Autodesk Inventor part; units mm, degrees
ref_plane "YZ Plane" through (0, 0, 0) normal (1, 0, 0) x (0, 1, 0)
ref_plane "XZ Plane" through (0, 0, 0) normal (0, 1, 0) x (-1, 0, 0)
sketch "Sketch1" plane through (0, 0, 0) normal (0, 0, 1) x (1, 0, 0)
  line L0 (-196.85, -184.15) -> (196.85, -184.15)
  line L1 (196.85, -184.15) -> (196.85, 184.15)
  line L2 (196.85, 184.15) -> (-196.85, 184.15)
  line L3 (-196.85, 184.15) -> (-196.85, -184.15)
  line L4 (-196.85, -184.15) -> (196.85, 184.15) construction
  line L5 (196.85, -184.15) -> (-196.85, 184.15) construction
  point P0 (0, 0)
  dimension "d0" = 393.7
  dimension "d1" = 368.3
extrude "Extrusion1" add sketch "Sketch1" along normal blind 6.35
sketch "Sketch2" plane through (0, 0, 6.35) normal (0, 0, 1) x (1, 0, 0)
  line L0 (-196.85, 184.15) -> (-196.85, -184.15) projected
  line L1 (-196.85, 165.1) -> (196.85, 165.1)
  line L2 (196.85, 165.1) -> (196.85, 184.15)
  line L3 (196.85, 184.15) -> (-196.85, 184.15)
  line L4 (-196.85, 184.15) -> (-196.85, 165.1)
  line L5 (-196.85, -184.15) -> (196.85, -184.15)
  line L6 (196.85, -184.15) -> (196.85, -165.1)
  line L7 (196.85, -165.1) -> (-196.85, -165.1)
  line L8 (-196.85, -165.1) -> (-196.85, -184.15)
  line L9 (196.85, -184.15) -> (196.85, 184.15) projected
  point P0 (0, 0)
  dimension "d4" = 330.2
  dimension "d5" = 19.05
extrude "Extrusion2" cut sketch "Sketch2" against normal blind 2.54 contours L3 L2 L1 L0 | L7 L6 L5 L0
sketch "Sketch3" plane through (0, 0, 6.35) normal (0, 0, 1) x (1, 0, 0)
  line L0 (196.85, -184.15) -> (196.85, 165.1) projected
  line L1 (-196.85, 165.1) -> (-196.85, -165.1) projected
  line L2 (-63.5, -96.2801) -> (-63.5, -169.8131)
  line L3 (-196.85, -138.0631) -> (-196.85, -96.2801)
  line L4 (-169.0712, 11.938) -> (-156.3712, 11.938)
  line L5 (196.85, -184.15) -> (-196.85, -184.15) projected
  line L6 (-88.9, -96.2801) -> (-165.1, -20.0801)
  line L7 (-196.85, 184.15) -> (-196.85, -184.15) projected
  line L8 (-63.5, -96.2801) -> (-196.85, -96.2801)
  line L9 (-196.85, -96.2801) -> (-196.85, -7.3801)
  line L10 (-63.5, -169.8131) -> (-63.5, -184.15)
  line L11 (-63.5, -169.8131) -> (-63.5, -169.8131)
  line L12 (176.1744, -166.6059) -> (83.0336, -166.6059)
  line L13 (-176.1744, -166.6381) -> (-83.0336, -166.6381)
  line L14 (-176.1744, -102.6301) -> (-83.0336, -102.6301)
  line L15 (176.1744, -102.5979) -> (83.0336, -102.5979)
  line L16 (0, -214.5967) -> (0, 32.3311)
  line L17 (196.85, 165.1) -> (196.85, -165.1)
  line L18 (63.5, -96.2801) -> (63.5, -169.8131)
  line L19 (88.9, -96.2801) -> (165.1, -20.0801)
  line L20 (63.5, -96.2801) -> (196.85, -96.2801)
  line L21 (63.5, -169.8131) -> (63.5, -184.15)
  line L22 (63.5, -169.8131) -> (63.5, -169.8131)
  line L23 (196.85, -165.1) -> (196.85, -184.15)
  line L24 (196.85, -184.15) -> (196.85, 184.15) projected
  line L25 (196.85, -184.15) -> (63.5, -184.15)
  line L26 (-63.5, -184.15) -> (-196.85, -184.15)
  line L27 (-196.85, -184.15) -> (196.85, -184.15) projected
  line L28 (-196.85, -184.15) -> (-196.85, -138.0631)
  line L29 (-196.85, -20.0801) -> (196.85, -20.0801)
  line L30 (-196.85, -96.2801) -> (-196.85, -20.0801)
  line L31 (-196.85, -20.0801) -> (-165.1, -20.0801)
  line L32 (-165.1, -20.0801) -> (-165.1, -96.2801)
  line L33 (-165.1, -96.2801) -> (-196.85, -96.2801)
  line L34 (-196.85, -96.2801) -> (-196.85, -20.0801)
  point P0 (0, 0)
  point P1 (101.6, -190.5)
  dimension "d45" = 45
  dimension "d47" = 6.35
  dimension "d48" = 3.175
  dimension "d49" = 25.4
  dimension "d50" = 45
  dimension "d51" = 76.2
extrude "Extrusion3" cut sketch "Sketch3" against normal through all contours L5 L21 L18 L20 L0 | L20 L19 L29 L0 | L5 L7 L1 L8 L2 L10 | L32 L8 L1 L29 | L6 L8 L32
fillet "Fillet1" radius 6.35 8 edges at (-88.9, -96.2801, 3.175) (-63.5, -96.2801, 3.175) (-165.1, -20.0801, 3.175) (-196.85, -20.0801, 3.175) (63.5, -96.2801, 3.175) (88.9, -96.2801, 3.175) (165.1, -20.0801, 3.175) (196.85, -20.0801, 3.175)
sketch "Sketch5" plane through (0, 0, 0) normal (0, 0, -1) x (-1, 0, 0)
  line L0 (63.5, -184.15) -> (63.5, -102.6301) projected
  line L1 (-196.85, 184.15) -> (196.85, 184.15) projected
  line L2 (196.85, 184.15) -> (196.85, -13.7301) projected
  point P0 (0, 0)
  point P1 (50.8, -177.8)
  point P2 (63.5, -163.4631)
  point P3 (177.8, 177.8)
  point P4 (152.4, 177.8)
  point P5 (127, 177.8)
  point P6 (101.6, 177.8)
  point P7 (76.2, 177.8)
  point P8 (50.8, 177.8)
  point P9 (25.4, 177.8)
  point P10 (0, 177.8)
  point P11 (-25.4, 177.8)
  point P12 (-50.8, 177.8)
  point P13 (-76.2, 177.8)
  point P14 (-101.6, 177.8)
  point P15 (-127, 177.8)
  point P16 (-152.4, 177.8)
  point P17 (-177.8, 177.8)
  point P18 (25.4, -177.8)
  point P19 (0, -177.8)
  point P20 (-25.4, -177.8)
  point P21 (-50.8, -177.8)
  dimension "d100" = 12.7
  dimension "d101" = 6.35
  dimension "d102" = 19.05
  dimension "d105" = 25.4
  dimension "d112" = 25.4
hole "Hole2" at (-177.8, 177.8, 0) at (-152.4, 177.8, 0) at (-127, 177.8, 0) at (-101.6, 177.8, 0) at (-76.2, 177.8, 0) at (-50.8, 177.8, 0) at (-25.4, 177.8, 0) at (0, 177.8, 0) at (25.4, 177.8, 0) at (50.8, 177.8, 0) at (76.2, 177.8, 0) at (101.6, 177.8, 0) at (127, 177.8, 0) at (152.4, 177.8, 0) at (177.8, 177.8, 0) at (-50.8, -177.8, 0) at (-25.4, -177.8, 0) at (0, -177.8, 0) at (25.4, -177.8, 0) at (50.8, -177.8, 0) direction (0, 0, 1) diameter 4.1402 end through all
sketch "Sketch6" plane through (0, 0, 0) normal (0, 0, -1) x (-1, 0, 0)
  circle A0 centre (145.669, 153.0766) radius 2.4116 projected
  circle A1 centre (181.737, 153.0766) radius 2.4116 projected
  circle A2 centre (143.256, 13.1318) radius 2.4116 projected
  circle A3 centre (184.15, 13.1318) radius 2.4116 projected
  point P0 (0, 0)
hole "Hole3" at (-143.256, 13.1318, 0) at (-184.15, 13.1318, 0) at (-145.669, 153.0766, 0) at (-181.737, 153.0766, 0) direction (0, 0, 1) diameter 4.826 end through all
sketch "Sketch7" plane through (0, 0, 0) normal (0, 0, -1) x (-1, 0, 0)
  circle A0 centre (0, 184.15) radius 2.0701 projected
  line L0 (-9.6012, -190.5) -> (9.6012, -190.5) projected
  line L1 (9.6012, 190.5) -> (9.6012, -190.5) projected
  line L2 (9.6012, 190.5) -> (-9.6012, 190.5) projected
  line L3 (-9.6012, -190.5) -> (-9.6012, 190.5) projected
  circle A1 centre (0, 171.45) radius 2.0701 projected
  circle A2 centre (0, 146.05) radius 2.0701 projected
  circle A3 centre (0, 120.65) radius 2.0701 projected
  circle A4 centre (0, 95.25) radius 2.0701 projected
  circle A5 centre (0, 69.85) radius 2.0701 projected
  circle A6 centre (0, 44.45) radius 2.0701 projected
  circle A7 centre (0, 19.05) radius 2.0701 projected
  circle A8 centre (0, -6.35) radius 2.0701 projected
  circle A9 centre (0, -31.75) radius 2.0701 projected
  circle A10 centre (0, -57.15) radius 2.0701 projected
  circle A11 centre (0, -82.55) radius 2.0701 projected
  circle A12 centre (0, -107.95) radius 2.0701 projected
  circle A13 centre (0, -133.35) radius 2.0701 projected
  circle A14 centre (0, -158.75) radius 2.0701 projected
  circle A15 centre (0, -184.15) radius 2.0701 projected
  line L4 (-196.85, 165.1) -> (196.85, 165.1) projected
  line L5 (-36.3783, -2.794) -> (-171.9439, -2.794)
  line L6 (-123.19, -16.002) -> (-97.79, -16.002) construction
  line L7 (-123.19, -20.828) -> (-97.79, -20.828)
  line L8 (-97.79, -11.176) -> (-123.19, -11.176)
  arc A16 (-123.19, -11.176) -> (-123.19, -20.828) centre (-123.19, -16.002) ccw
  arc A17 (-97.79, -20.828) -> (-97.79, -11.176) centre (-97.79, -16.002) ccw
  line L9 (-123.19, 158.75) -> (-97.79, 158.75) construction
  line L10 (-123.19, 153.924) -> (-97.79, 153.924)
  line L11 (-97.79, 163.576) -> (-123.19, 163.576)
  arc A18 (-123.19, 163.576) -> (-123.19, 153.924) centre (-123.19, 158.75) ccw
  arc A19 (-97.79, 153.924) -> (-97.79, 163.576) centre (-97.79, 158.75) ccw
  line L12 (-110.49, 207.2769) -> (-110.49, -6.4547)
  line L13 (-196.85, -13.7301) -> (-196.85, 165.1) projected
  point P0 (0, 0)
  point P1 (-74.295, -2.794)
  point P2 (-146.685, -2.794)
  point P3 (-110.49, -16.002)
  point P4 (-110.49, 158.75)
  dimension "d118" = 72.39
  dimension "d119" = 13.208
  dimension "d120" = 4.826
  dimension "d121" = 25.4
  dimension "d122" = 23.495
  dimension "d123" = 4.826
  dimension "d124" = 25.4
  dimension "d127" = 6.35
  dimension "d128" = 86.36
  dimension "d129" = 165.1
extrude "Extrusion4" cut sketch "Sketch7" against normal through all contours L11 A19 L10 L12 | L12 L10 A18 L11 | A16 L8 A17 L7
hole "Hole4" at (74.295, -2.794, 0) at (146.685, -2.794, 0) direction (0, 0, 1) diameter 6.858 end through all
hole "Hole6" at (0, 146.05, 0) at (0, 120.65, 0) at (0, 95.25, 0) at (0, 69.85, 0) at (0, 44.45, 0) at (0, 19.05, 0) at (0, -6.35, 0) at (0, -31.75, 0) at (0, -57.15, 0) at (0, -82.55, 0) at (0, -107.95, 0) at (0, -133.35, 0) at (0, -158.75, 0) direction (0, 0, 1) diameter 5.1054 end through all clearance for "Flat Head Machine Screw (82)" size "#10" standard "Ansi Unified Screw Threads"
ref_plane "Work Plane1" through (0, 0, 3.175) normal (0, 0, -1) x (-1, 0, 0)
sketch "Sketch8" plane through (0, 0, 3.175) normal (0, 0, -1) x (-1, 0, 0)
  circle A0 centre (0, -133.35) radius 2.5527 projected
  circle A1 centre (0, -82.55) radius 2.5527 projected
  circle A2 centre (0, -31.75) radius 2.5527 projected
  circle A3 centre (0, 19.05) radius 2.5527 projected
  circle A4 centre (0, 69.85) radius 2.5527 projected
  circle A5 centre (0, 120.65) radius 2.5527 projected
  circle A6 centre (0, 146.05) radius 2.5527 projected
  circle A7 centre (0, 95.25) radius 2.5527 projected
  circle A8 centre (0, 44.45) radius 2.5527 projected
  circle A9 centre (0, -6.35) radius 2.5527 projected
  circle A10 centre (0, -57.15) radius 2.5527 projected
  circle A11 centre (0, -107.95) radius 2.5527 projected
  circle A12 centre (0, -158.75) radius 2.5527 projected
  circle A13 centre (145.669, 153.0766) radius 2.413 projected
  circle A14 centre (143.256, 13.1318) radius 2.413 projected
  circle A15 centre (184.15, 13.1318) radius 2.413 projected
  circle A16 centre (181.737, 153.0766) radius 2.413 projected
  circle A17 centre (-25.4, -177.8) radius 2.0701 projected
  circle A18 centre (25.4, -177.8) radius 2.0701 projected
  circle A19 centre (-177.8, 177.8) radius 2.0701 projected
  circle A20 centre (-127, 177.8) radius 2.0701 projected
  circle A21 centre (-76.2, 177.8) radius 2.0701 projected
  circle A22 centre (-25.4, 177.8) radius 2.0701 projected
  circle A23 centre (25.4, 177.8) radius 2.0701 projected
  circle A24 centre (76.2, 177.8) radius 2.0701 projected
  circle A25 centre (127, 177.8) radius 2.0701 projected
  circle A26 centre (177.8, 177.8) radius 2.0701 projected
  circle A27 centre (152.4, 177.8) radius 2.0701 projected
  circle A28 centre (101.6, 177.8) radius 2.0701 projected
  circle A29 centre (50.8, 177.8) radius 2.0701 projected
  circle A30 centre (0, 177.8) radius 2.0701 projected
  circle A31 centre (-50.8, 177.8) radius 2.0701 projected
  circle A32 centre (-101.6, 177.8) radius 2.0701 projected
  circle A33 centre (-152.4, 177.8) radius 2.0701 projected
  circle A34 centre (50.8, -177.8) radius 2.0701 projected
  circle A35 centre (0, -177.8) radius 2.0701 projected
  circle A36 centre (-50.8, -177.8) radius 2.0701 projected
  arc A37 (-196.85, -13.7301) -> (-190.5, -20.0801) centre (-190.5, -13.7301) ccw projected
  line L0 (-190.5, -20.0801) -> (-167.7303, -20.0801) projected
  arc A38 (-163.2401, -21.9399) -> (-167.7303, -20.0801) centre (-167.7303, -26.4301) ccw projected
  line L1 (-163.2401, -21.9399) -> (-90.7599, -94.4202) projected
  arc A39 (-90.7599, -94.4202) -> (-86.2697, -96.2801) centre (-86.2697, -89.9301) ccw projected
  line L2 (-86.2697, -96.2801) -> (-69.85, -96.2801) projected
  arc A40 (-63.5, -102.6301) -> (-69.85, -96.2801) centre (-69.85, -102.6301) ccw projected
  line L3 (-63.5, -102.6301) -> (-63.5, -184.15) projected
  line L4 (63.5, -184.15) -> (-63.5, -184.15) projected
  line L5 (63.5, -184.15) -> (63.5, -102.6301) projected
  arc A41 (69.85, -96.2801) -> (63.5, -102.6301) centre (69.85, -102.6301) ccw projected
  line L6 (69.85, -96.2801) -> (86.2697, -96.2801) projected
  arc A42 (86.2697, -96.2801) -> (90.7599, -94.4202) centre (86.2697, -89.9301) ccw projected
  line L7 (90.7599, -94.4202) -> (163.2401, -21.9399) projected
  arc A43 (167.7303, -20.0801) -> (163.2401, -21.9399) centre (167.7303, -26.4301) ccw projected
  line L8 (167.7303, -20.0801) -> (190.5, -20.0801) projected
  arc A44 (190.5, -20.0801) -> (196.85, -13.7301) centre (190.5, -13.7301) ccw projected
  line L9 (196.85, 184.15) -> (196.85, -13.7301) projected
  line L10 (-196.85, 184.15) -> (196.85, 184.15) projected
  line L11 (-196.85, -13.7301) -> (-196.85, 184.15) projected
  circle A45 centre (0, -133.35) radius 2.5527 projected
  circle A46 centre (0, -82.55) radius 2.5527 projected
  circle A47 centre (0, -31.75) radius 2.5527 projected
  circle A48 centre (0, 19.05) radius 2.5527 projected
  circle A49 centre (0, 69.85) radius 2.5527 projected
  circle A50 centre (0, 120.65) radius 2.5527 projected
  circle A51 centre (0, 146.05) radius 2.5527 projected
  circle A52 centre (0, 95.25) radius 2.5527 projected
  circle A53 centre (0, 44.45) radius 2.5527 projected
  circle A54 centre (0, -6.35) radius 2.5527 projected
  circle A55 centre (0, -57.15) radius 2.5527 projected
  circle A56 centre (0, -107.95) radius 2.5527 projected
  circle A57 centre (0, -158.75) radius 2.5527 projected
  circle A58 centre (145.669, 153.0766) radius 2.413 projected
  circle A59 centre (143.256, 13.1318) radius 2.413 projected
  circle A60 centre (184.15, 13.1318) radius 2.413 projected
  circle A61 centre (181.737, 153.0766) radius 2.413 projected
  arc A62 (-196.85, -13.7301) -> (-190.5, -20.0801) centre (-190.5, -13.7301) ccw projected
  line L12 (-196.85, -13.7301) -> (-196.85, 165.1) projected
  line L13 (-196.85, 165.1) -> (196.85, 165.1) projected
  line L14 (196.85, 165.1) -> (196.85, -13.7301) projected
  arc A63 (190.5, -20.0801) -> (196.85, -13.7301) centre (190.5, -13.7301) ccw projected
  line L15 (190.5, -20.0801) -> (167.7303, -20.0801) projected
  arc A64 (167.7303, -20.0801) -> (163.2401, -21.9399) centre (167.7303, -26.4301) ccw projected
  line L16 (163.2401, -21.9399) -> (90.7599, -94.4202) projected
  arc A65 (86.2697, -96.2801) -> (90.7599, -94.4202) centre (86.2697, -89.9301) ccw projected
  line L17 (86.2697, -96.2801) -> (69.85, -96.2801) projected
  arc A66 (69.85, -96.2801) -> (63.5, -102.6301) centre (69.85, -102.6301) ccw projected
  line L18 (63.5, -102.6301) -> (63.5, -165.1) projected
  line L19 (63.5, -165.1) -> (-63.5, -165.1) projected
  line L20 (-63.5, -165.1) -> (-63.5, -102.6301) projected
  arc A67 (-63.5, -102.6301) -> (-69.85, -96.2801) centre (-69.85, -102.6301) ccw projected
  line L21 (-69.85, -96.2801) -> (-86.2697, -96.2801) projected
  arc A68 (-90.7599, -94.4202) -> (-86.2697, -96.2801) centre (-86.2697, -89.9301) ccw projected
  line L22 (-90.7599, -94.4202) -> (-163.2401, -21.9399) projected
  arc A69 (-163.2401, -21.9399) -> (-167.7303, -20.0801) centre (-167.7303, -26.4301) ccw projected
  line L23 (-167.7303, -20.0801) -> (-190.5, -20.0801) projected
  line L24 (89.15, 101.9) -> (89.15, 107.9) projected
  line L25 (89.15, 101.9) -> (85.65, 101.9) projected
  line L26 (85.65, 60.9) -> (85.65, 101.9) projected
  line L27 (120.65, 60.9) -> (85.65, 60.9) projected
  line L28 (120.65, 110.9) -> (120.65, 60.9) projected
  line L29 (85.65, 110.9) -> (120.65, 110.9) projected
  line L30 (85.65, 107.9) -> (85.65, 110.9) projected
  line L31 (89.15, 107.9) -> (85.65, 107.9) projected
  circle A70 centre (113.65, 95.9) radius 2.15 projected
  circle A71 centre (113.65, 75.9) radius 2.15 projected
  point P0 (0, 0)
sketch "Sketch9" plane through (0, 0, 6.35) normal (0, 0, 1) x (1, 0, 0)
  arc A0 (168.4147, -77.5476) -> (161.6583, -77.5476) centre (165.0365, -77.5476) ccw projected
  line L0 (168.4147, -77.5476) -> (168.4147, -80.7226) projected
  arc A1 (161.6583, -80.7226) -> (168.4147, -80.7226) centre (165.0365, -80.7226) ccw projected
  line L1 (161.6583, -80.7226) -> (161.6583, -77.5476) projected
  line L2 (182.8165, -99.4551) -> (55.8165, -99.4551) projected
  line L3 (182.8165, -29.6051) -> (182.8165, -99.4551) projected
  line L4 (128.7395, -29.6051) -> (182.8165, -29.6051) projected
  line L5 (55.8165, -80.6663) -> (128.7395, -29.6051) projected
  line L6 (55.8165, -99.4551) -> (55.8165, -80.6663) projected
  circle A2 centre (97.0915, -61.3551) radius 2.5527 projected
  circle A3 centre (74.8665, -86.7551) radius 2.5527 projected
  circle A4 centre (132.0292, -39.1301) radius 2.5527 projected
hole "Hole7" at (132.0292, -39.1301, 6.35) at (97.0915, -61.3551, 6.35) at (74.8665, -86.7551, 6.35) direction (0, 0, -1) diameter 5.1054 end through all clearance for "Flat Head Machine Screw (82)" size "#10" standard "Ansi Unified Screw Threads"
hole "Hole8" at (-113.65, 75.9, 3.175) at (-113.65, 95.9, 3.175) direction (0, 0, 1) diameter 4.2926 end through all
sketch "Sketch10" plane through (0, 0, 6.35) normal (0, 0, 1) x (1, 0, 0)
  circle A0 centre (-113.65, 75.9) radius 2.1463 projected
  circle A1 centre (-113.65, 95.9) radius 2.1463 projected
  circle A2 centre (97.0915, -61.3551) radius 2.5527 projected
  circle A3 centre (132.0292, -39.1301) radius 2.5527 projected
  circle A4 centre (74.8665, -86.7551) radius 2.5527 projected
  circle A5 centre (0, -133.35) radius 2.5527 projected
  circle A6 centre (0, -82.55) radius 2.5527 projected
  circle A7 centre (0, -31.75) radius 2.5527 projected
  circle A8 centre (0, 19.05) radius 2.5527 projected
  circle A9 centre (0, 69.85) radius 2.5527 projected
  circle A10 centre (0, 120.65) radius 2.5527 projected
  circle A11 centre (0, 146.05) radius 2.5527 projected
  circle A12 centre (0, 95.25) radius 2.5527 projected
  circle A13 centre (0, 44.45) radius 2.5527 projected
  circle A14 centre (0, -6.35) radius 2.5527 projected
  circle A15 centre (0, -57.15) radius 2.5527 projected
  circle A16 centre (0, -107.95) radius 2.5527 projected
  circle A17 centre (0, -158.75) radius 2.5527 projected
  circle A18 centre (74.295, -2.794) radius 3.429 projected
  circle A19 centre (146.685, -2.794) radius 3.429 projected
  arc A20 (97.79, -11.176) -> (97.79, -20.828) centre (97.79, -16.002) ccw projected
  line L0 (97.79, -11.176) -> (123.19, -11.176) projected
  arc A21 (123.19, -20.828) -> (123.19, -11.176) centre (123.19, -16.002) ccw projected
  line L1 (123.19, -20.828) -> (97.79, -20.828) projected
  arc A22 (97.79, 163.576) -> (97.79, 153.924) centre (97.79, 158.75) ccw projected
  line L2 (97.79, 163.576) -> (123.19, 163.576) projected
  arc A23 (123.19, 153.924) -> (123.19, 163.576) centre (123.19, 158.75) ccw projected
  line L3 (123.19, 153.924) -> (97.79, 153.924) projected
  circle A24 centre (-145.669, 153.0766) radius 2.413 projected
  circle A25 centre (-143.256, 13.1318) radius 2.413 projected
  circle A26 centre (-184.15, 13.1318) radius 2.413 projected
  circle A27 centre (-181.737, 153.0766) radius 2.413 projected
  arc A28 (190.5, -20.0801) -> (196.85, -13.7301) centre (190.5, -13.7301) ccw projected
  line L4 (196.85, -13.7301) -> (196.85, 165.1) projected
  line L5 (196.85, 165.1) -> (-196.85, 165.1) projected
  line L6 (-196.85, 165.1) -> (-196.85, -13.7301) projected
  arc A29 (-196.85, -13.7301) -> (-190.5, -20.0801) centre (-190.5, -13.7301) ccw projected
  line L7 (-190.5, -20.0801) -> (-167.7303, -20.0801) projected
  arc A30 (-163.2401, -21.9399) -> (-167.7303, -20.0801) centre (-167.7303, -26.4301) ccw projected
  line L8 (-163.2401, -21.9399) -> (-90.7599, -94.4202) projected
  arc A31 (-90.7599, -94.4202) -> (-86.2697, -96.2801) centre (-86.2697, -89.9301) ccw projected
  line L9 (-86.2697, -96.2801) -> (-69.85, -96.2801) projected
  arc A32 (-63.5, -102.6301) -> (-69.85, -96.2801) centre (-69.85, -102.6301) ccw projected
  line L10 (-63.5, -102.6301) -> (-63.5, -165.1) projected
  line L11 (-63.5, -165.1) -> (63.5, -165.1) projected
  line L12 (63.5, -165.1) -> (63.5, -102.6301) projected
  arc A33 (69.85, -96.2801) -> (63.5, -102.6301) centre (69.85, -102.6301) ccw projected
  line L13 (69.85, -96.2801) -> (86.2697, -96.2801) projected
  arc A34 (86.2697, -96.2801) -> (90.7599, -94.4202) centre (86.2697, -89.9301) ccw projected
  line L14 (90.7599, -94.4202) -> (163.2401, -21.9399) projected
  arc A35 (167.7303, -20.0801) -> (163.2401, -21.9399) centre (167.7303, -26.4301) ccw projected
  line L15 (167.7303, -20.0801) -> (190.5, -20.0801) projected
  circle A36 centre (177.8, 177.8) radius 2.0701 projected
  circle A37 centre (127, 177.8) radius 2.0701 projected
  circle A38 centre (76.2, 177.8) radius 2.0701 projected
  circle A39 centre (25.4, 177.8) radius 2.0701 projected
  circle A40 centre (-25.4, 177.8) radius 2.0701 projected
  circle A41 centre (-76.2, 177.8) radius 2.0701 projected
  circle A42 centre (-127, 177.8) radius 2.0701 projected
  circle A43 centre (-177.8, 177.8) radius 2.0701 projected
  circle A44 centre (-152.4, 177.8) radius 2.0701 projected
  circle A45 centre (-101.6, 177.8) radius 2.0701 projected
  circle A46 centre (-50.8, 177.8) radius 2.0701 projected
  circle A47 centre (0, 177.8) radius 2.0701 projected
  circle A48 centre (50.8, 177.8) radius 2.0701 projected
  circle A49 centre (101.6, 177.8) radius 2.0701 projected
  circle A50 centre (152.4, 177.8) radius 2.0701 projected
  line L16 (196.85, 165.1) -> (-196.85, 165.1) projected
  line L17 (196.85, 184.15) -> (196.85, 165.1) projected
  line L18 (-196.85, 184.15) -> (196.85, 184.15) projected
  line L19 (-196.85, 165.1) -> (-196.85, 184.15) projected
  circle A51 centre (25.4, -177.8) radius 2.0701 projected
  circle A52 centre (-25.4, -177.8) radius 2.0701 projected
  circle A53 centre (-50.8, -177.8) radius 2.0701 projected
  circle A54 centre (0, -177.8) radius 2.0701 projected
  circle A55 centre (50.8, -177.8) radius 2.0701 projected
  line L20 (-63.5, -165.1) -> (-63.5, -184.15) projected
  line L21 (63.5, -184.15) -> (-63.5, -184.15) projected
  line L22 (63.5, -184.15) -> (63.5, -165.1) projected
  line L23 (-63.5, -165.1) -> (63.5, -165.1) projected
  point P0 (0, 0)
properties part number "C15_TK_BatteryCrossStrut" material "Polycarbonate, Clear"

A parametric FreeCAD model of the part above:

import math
import FreeCAD as App
import Part
import Sketcher
from FreeCAD import Vector
Q = App.Units.Quantity


def edges_at(feature, points):
    """Names of the edges that pass closest to the given points."""
    edges = feature.Shape.Edges
    near = lambda p: min(range(len(edges)), key=lambda i: edges[i].distToShape(Part.Vertex(*p))[0])
    return sorted({f"Edge{near(p) + 1}" for p in points})

doc = App.newDocument("Part")
params = doc.addObject("Spreadsheet::Sheet", "Params")
for row, (alias, value) in enumerate([
    ("sketch1_width", "15.5 in"),
    ("sketch1_height", "14.5 in"),
    ("pad1_length", "0.25 in"),
    ("sketch2_height", "0.75 in"),
    ("sketch2_width", "15.5 in"),
    ("pocket1_length", "0.1 in"),
    ("sketch3_width", "1 in"),
    ("sketch3_width2", "5.25 in"),
    ("fillet_radius", "0.25 in"),
    ("sketch4_diameter", "0.163 in"),
    ("hole_diameter", "0.163 in"),
    ("sketch5_diameter", "0.19 in"),
    ("hole2_diameter", "0.19 in"),
    ("sketch6_width", "1 in"),
    ("sketch6_radius", "0.19 in"),
    ("sketch7_diameter", "0.27 in"),
    ("hole3_diameter", "0.27 in"),
    ("sketch8_diameter", "0.201 in"),
    ("hole4_diameter", "0.201 in"),
    ("sketch9_diameter", "0.201 in"),
    ("hole5_diameter", "0.201 in"),
    ("sketch10_diameter", "0.169 in"),
    ("hole6_diameter", "0.169 in"),
], start=1):
    params.set(f"A{row}", alias)
    params.set(f"B{row}", "=" + value)
    params.setAlias(f"B{row}", alias)

body = doc.addObject("PartDesign::Body", "Body")

# Sketch on XY plane
sketch1 = body.newObject("Sketcher::SketchObject", "Sketch")
sketch1.AttachmentSupport = (doc.getObject("XY_Plane"), [""])
sketch1.MapMode = "FlatFace"
sketch1.addGeometry(Part.LineSegment(Vector(-197, 184, 0), Vector(-197, -184, 0)), False)
sketch1.addGeometry(Part.LineSegment(Vector(-197, -184, 0), Vector(197, -184, 0)), False)
sketch1.addGeometry(Part.LineSegment(Vector(197, -184, 0), Vector(197, 184, 0)), False)
sketch1.addGeometry(Part.LineSegment(Vector(197, 184, 0), Vector(-197, 184, 0)), False)
sketch1.addConstraint(Sketcher.Constraint("Coincident", 0, 2, 1, 1))
sketch1.addConstraint(Sketcher.Constraint("Coincident", 1, 2, 2, 1))
sketch1.addConstraint(Sketcher.Constraint("Coincident", 2, 2, 3, 1))
sketch1.addConstraint(Sketcher.Constraint("Coincident", 3, 2, 0, 1))
sketch1.addConstraint(Sketcher.Constraint("Vertical", 0))
sketch1.addConstraint(Sketcher.Constraint("Horizontal", 1))
sketch1.addConstraint(Sketcher.Constraint("Vertical", 2))
sketch1.addConstraint(Sketcher.Constraint("Horizontal", 3))
sketch1.addConstraint(Sketcher.Constraint("Symmetric", 0, 2, 2, 2, -1, 1))
sketch1.addConstraint(Sketcher.Constraint("DistanceX", 1, 1, 1, 2, Q("15.5 in")))
sketch1.addConstraint(Sketcher.Constraint("DistanceY", 0, 2, 0, 1, Q("14.5 in")))
sketch1.setExpression("Constraints[9]", "Params.sketch1_width")
sketch1.setExpression("Constraints[10]", "Params.sketch1_height")
pad1 = body.newObject("PartDesign::Pad", "Pad")
pad1.Profile = sketch1
pad1.setExpression("Length", "Params.pad1_length")

# Sketch on XY plane
sketch2 = body.newObject("Sketcher::SketchObject", "Sketch001")
sketch2.AttachmentSupport = (doc.getObject("XY_Plane"), [""])
sketch2.MapMode = "FlatFace"
sketch2.AttachmentOffset = App.Placement(Vector(0, 0, 0.25 * 25.4), App.Rotation())
sketch2.addGeometry(Part.LineSegment(Vector(197, 184, 0), Vector(-197, 184, 0)), False)
sketch2.addGeometry(Part.LineSegment(Vector(-197, 184, 0), Vector(-197, 165, 0)), False)
sketch2.addGeometry(Part.LineSegment(Vector(-197, 165, 0), Vector(197, 165, 0)), False)
sketch2.addGeometry(Part.LineSegment(Vector(197, 165, 0), Vector(197, 184, 0)), False)
sketch2.addGeometry(Part.LineSegment(Vector(197, -165, 0), Vector(-197, -165, 0)), False)
sketch2.addGeometry(Part.LineSegment(Vector(-197, -165, 0), Vector(-197, -184, 0)), False)
sketch2.addGeometry(Part.LineSegment(Vector(-197, -184, 0), Vector(197, -184, 0)), False)
sketch2.addGeometry(Part.LineSegment(Vector(197, -184, 0), Vector(197, -165, 0)), False)
sketch2.addConstraint(Sketcher.Constraint("Coincident", 0, 2, 1, 1))
sketch2.addConstraint(Sketcher.Constraint("Coincident", 1, 2, 2, 1))
sketch2.addConstraint(Sketcher.Constraint("Coincident", 2, 2, 3, 1))
sketch2.addConstraint(Sketcher.Constraint("Coincident", 3, 2, 0, 1))
sketch2.addConstraint(Sketcher.Constraint("Coincident", 4, 2, 5, 1))
sketch2.addConstraint(Sketcher.Constraint("Coincident", 5, 2, 6, 1))
sketch2.addConstraint(Sketcher.Constraint("Coincident", 6, 2, 7, 1))
sketch2.addConstraint(Sketcher.Constraint("Coincident", 7, 2, 4, 1))
sketch2.addConstraint(Sketcher.Constraint("Horizontal", 0))
sketch2.addConstraint(Sketcher.Constraint("Vertical", 1))
sketch2.addConstraint(Sketcher.Constraint("Horizontal", 2))
sketch2.addConstraint(Sketcher.Constraint("Vertical", 3))
sketch2.addConstraint(Sketcher.Constraint("Horizontal", 4))
sketch2.addConstraint(Sketcher.Constraint("Vertical", 5))
sketch2.addConstraint(Sketcher.Constraint("Horizontal", 6))
sketch2.addConstraint(Sketcher.Constraint("Vertical", 7))
sketch2.addConstraint(Sketcher.Constraint("Symmetric", 2, 2, 4, 2, -1, 1))
sketch2.addConstraint(Sketcher.Constraint("Symmetric", 0, 2, 6, 2, -1, 1))
sketch2.addConstraint(Sketcher.Constraint("Vertical", 1, 2, 4, 2))
sketch2.addConstraint(Sketcher.Constraint("DistanceY", 4, 2, 1, 2, Q("13 in")))
sketch2.addConstraint(Sketcher.Constraint("DistanceY", 1, 2, 1, 1, Q("0.75 in")))
sketch2.addConstraint(Sketcher.Constraint("DistanceX", 0, 2, 0, 1, Q("15.5 in")))
sketch2.setExpression("Constraints[20]", "Params.sketch2_height")
sketch2.setExpression("Constraints[21]", "Params.sketch2_width")
pocket1 = body.newObject("PartDesign::Pocket", "Pocket")
pocket1.Profile = sketch2
pocket1.setExpression("Length", "Params.pocket1_length")

# Sketch on XY plane
sketch3 = body.newObject("Sketcher::SketchObject", "Sketch002")
sketch3.AttachmentSupport = (doc.getObject("XY_Plane"), [""])
sketch3.MapMode = "FlatFace"
sketch3.AttachmentOffset = App.Placement(Vector(0, 0, 0.25 * 25.4), App.Rotation())
sketch3.addGeometry(Part.LineSegment(Vector(64, -184, 0), Vector(197, -184, 0)), False)
sketch3.addGeometry(Part.LineSegment(Vector(197, -184, 0), Vector(197, -20, 0)), False)
sketch3.addGeometry(Part.LineSegment(Vector(197, -20, 0), Vector(165, -20, 0)), False)
sketch3.addGeometry(Part.LineSegment(Vector(165, -20, 0), Vector(89, -96, 0)), False)
sketch3.addGeometry(Part.LineSegment(Vector(89, -96, 0), Vector(64, -96, 0)), False)
sketch3.addGeometry(Part.LineSegment(Vector(64, -96, 0), Vector(64, -184, 0)), False)
sketch3.addGeometry(Part.LineSegment(Vector(-197, -184, 0), Vector(-64, -184, 0)), False)
sketch3.addGeometry(Part.LineSegment(Vector(-64, -184, 0), Vector(-64, -96, 0)), False)
sketch3.addGeometry(Part.LineSegment(Vector(-64, -96, 0), Vector(-89, -96, 0)), False)
sketch3.addGeometry(Part.LineSegment(Vector(-89, -96, 0), Vector(-165, -20, 0)), False)
sketch3.addGeometry(Part.LineSegment(Vector(-165, -20, 0), Vector(-197, -20, 0)), False)
sketch3.addGeometry(Part.LineSegment(Vector(-197, -20, 0), Vector(-197, -184, 0)), False)
sketch3.addConstraint(Sketcher.Constraint("Coincident", 0, 2, 1, 1))
sketch3.addConstraint(Sketcher.Constraint("Coincident", 1, 2, 2, 1))
sketch3.addConstraint(Sketcher.Constraint("Coincident", 2, 2, 3, 1))
sketch3.addConstraint(Sketcher.Constraint("Coincident", 3, 2, 4, 1))
sketch3.addConstraint(Sketcher.Constraint("Coincident", 4, 2, 5, 1))
sketch3.addConstraint(Sketcher.Constraint("Coincident", 5, 2, 0, 1))
sketch3.addConstraint(Sketcher.Constraint("Coincident", 6, 2, 7, 1))
sketch3.addConstraint(Sketcher.Constraint("Coincident", 7, 2, 8, 1))
sketch3.addConstraint(Sketcher.Constraint("Coincident", 8, 2, 9, 1))
sketch3.addConstraint(Sketcher.Constraint("Coincident", 9, 2, 10, 1))
sketch3.addConstraint(Sketcher.Constraint("Coincident", 10, 2, 11, 1))
sketch3.addConstraint(Sketcher.Constraint("Coincident", 11, 2, 6, 1))
sketch3.addConstraint(Sketcher.Constraint("Horizontal", 0))
sketch3.addConstraint(Sketcher.Constraint("Vertical", 1))
sketch3.addConstraint(Sketcher.Constraint("Horizontal", 2))
sketch3.addConstraint(Sketcher.Constraint("Horizontal", 4))
sketch3.addConstraint(Sketcher.Constraint("Vertical", 5))
sketch3.addConstraint(Sketcher.Constraint("Horizontal", 6))
sketch3.addConstraint(Sketcher.Constraint("Vertical", 7))
sketch3.addConstraint(Sketcher.Constraint("Horizontal", 8))
sketch3.addConstraint(Sketcher.Constraint("Horizontal", 10))
sketch3.addConstraint(Sketcher.Constraint("Vertical", 11))
sketch3.addConstraint(Sketcher.Constraint("Symmetric", 5, 2, 6, 2, -2))
sketch3.addConstraint(Sketcher.Constraint("Symmetric", 3, 2, 8, 2, -2))
sketch3.addConstraint(Sketcher.Constraint("Symmetric", 2, 2, 9, 2, -2))
sketch3.addConstraint(Sketcher.Constraint("Perpendicular", 3, 9))
sketch3.addConstraint(Sketcher.Constraint("Equal", 0, 6))
sketch3.addConstraint(Sketcher.Constraint("DistanceX", 4, 2, 4, 1, Q("1 in")))
sketch3.addConstraint(Sketcher.Constraint("DistanceX", 3, 2, 2, 2, Q("3 in")))
sketch3.addConstraint(Sketcher.Constraint("DistanceX", 6, 2, 5, 2, Q("5 in")))
sketch3.addConstraint(Sketcher.Constraint("DistanceX", 0, 1, 0, 2, Q("5.25 in")))
sketch3.addConstraint(Sketcher.Constraint("DistanceY", 0, 2, -1, 1, Q("7.25 in")))
sketch3.addConstraint(Sketcher.Constraint("DistanceY", 1, 1, 1, 2, 164.07))
sketch3.setExpression("Constraints[27]", "Params.sketch3_width")
sketch3.setExpression("Constraints[30]", "Params.sketch3_width2")
pocket2 = body.newObject("PartDesign::Pocket", "Pocket001")
pocket2.Profile = sketch3
pocket2.Type = "ThroughAll"
doc.recompute()

fillet = body.newObject("PartDesign::Fillet", "Fillet")
fillet.Base = (pocket2, edges_at(pocket2, [
    (-88.9, -96.28, 3.175),
    (-63.5, -96.28, 3.175),
    (-165.1, -20.08, 3.175),
    (-196.85, -20.08, 3.175),
    (63.5, -96.28, 3.175),
    (88.9, -96.28, 3.175),
    (165.1, -20.08, 3.175),
    (196.85, -20.08, 3.175),
]))
fillet.setExpression("Radius", "Params.fillet_radius")

# Sketch on XY plane
sketch4 = body.newObject("Sketcher::SketchObject", "Sketch003")
sketch4.AttachmentSupport = (doc.getObject("XY_Plane"), [""])
sketch4.MapMode = "FlatFace"
sketch4.addGeometry(Part.Circle(Vector(-177.8, 177.8, 0), Vector(0, 0, 1), 2.1), False)
sketch4.addGeometry(Part.Circle(Vector(-152.4, 177.8, 0), Vector(0, 0, 1), 2.1), False)
sketch4.addGeometry(Part.Circle(Vector(-127, 177.8, 0), Vector(0, 0, 1), 2.1), False)
sketch4.addGeometry(Part.Circle(Vector(-101.6, 177.8, 0), Vector(0, 0, 1), 2.1), False)
sketch4.addGeometry(Part.Circle(Vector(-76.2, 177.8, 0), Vector(0, 0, 1), 2.1), False)
sketch4.addGeometry(Part.Circle(Vector(-50.8, 177.8, 0), Vector(0, 0, 1), 2.1), False)
sketch4.addGeometry(Part.Circle(Vector(-25.4, 177.8, 0), Vector(0, 0, 1), 2.1), False)
sketch4.addGeometry(Part.Circle(Vector(0, 177.8, 0), Vector(0, 0, 1), 2.1), False)
sketch4.addGeometry(Part.Circle(Vector(25.4, 177.8, 0), Vector(0, 0, 1), 2.1), False)
sketch4.addGeometry(Part.Circle(Vector(50.8, 177.8, 0), Vector(0, 0, 1), 2.1), False)
sketch4.addGeometry(Part.Circle(Vector(76.2, 177.8, 0), Vector(0, 0, 1), 2.1), False)
sketch4.addGeometry(Part.Circle(Vector(101.6, 177.8, 0), Vector(0, 0, 1), 2.1), False)
sketch4.addGeometry(Part.Circle(Vector(127, 177.8, 0), Vector(0, 0, 1), 2.1), False)
sketch4.addGeometry(Part.Circle(Vector(152.4, 177.8, 0), Vector(0, 0, 1), 2.1), False)
sketch4.addGeometry(Part.Circle(Vector(177.8, 177.8, 0), Vector(0, 0, 1), 2.1), False)
sketch4.addGeometry(Part.Circle(Vector(-50.8, -177.8, 0), Vector(0, 0, 1), 2.1), False)
sketch4.addGeometry(Part.Circle(Vector(-25.4, -177.8, 0), Vector(0, 0, 1), 2.1), False)
sketch4.addGeometry(Part.Circle(Vector(0, -177.8, 0), Vector(0, 0, 1), 2.1), False)
sketch4.addGeometry(Part.Circle(Vector(25.4, -177.8, 0), Vector(0, 0, 1), 2.1), False)
sketch4.addGeometry(Part.Circle(Vector(50.8, -177.8, 0), Vector(0, 0, 1), 2.1), False)
sketch4.addConstraint(Sketcher.Constraint("Equal", 0, 1))
sketch4.addConstraint(Sketcher.Constraint("Equal", 1, 2))
sketch4.addConstraint(Sketcher.Constraint("Equal", 2, 3))
sketch4.addConstraint(Sketcher.Constraint("Equal", 3, 4))
sketch4.addConstraint(Sketcher.Constraint("Equal", 4, 5))
sketch4.addConstraint(Sketcher.Constraint("Equal", 5, 6))
sketch4.addConstraint(Sketcher.Constraint("Equal", 6, 7))
sketch4.addConstraint(Sketcher.Constraint("Equal", 7, 8))
sketch4.addConstraint(Sketcher.Constraint("Equal", 8, 9))
sketch4.addConstraint(Sketcher.Constraint("Equal", 9, 10))
sketch4.addConstraint(Sketcher.Constraint("Equal", 10, 11))
sketch4.addConstraint(Sketcher.Constraint("Equal", 11, 12))
sketch4.addConstraint(Sketcher.Constraint("Equal", 12, 13))
sketch4.addConstraint(Sketcher.Constraint("Equal", 13, 14))
sketch4.addConstraint(Sketcher.Constraint("Equal", 14, 15))
sketch4.addConstraint(Sketcher.Constraint("Equal", 15, 16))
sketch4.addConstraint(Sketcher.Constraint("Equal", 16, 17))
sketch4.addConstraint(Sketcher.Constraint("Equal", 17, 18))
sketch4.addConstraint(Sketcher.Constraint("Equal", 18, 19))
sketch4.addConstraint(Sketcher.Constraint("Symmetric", 9, 3, 15, 3, -1, 1))
sketch4.addConstraint(Sketcher.Constraint("Symmetric", 8, 3, 16, 3, -1, 1))
sketch4.addConstraint(Sketcher.Constraint("Symmetric", 7, 3, 17, 3, -1, 1))
sketch4.addConstraint(Sketcher.Constraint("Symmetric", 6, 3, 18, 3, -1, 1))
sketch4.addConstraint(Sketcher.Constraint("Symmetric", 5, 3, 19, 3, -1, 1))
sketch4.addConstraint(Sketcher.Constraint("Symmetric", 6, 3, 8, 3, -2))
sketch4.addConstraint(Sketcher.Constraint("Symmetric", 5, 3, 9, 3, -2))
sketch4.addConstraint(Sketcher.Constraint("Symmetric", 4, 3, 10, 3, -2))
sketch4.addConstraint(Sketcher.Constraint("Symmetric", 3, 3, 11, 3, -2))
sketch4.addConstraint(Sketcher.Constraint("Symmetric", 2, 3, 12, 3, -2))
sketch4.addConstraint(Sketcher.Constraint("Symmetric", 1, 3, 13, 3, -2))
sketch4.addConstraint(Sketcher.Constraint("Symmetric", 0, 3, 14, 3, -2))
sketch4.addConstraint(Sketcher.Constraint("PointOnObject", 7, 3, -2))
sketch4.addConstraint(Sketcher.Constraint("Horizontal", 0, 3, 1, 3))
sketch4.addConstraint(Sketcher.Constraint("Horizontal", 1, 3, 2, 3))
sketch4.addConstraint(Sketcher.Constraint("Horizontal", 2, 3, 3, 3))
sketch4.addConstraint(Sketcher.Constraint("Horizontal", 3, 3, 4, 3))
sketch4.addConstraint(Sketcher.Constraint("Horizontal", 4, 3, 5, 3))
sketch4.addConstraint(Sketcher.Constraint("Horizontal", 5, 3, 6, 3))
sketch4.addConstraint(Sketcher.Constraint("Horizontal", 6, 3, 7, 3))
sketch4.addConstraint(Sketcher.Constraint("Diameter", 0, Q("0.163 in")))
sketch4.addConstraint(Sketcher.Constraint("DistanceX", 0, 3, -1, 1, Q("7 in")))
sketch4.addConstraint(Sketcher.Constraint("DistanceY", -1, 1, 0, 3, Q("7 in")))
sketch4.addConstraint(Sketcher.Constraint("DistanceX", 1, 3, -1, 1, Q("6 in")))
sketch4.addConstraint(Sketcher.Constraint("DistanceX", 2, 3, -1, 1, Q("5 in")))
sketch4.addConstraint(Sketcher.Constraint("DistanceX", 3, 3, -1, 1, Q("4 in")))
sketch4.addConstraint(Sketcher.Constraint("DistanceX", 4, 3, -1, 1, Q("3 in")))
sketch4.addConstraint(Sketcher.Constraint("DistanceX", 5, 3, -1, 1, Q("2 in")))
sketch4.addConstraint(Sketcher.Constraint("DistanceX", 6, 3, -1, 1, Q("1 in")))
sketch4.setExpression("Constraints[39]", "Params.sketch4_diameter")
doc.recompute()
hole = body.newObject("PartDesign::Hole", "Hole")
hole.Profile = sketch4
hole.ThreadType = "None"
hole.setExpression("Diameter", "Params.hole_diameter")
hole.DepthType = "ThroughAll"
hole.Reversed = True

# Sketch on XY plane
sketch5 = body.newObject("Sketcher::SketchObject", "Sketch004")
sketch5.AttachmentSupport = (doc.getObject("XY_Plane"), [""])
sketch5.MapMode = "FlatFace"
sketch5.addGeometry(Part.Circle(Vector(-143.3, 13.1, 0), Vector(0, 0, 1), 2.4), False)
sketch5.addGeometry(Part.Circle(Vector(-184.2, 13.1, 0), Vector(0, 0, 1), 2.4), False)
sketch5.addGeometry(Part.Circle(Vector(-145.7, 153.1, 0), Vector(0, 0, 1), 2.4), False)
sketch5.addGeometry(Part.Circle(Vector(-181.7, 153.1, 0), Vector(0, 0, 1), 2.4), False)
sketch5.addConstraint(Sketcher.Constraint("Equal", 0, 1))
sketch5.addConstraint(Sketcher.Constraint("Equal", 1, 2))
sketch5.addConstraint(Sketcher.Constraint("Equal", 2, 3))
sketch5.addConstraint(Sketcher.Constraint("Horizontal", 0, 3, 1, 3))
sketch5.addConstraint(Sketcher.Constraint("Horizontal", 2, 3, 3, 3))
sketch5.addConstraint(Sketcher.Constraint("Diameter", 0, Q("0.19 in")))
sketch5.addConstraint(Sketcher.Constraint("DistanceX", 0, 3, -1, 1, Q("5.64 in")))
sketch5.addConstraint(Sketcher.Constraint("DistanceX", 1, 3, -1, 1, Q("7.25 in")))
sketch5.addConstraint(Sketcher.Constraint("DistanceX", 3, 3, 2, 3, Q("1.42 in")))
sketch5.addConstraint(Sketcher.Constraint("DistanceY", -1, 1, 0, 3, Q("0.517 in")))
sketch5.addConstraint(Sketcher.Constraint("DistanceX", 2, 3, -1, 1, Q("5.735 in")))
sketch5.addConstraint(Sketcher.Constraint("DistanceY", -1, 1, 2, 3, 153.0766))
sketch5.setExpression("Constraints[5]", "Params.sketch5_diameter")
doc.recompute()
hole2 = body.newObject("PartDesign::Hole", "Hole001")
hole2.Profile = sketch5
hole2.ThreadType = "None"
hole2.setExpression("Diameter", "Params.hole2_diameter")
hole2.DepthType = "ThroughAll"
hole2.Reversed = True

# Sketch on XY plane
sketch6 = body.newObject("Sketcher::SketchObject", "Sketch005")
sketch6.AttachmentSupport = (doc.getObject("XY_Plane"), [""])
sketch6.MapMode = "FlatFace"
sketch6.addGeometry(Part.LineSegment(Vector(97.8, 163.6, 0), Vector(123.2, 163.6, 0)), False)
sketch6.addGeometry(Part.ArcOfCircle(Part.Circle(Vector(123.2, 158.8, 0), Vector(0, 0, 1), 4.8), math.radians(-90), math.radians(90)), False)
sketch6.addGeometry(Part.LineSegment(Vector(123.2, 153.9, 0), Vector(97.8, 153.9, 0)), False)
sketch6.addGeometry(Part.ArcOfCircle(Part.Circle(Vector(97.8, 158.8, 0), Vector(0, 0, 1), 4.8), math.radians(90), math.radians(270)), False)
sketch6.addGeometry(Part.ArcOfCircle(Part.Circle(Vector(123.2, -16, 0), Vector(0, 0, 1), 4.8), math.radians(-90), math.radians(90)), False)
sketch6.addGeometry(Part.LineSegment(Vector(123.2, -20.8, 0), Vector(97.8, -20.8, 0)), False)
sketch6.addGeometry(Part.ArcOfCircle(Part.Circle(Vector(97.8, -16, 0), Vector(0, 0, 1), 4.8), math.radians(90), math.radians(270)), False)
sketch6.addGeometry(Part.LineSegment(Vector(97.8, -11.2, 0), Vector(123.2, -11.2, 0)), False)
sketch6.addConstraint(Sketcher.Constraint("Tangent", 0, 2, 1, 2))
sketch6.addConstraint(Sketcher.Constraint("Tangent", 1, 1, 2, 1))
sketch6.addConstraint(Sketcher.Constraint("Tangent", 2, 2, 3, 2))
sketch6.addConstraint(Sketcher.Constraint("Tangent", 3, 1, 0, 1))
sketch6.addConstraint(Sketcher.Constraint("Tangent", 4, 1, 5, 1))
sketch6.addConstraint(Sketcher.Constraint("Tangent", 5, 2, 6, 2))
sketch6.addConstraint(Sketcher.Constraint("Tangent", 6, 1, 7, 1))
sketch6.addConstraint(Sketcher.Constraint("Tangent", 7, 2, 4, 2))
sketch6.addConstraint(Sketcher.Constraint("Horizontal", 0))
sketch6.addConstraint(Sketcher.Constraint("Horizontal", 2))
sketch6.addConstraint(Sketcher.Constraint("Horizontal", 5))
sketch6.addConstraint(Sketcher.Constraint("Horizontal", 7))
sketch6.addConstraint(Sketcher.Constraint("Equal", 3, 4))
sketch6.addConstraint(Sketcher.Constraint("Vertical", 1, 3, 4, 3))
sketch6.addConstraint(Sketcher.Constraint("Vertical", 3, 3, 6, 3))
sketch6.addConstraint(Sketcher.Constraint("DistanceX", 0, 1, 0, 2, Q("1 in")))
sketch6.addConstraint(Sketcher.Constraint("Radius", 1, Q("0.19 in")))
sketch6.addConstraint(Sketcher.Constraint("DistanceY", 6, 1, 2, 2, Q("6.5 in")))
sketch6.addConstraint(Sketcher.Constraint("DistanceX", -1, 1, 1, 3, Q("4.85 in")))
sketch6.addConstraint(Sketcher.Constraint("DistanceY", -1, 1, 1, 3, Q("6.25 in")))
sketch6.setExpression("Constraints[15]", "Params.sketch6_width")
sketch6.setExpression("Constraints[16]", "Params.sketch6_radius")
pocket3 = body.newObject("PartDesign::Pocket", "Pocket002")
pocket3.Profile = sketch6
pocket3.Type = "ThroughAll"
pocket3.Reversed = True

# Sketch on XY plane
sketch7 = body.newObject("Sketcher::SketchObject", "Sketch006")
sketch7.AttachmentSupport = (doc.getObject("XY_Plane"), [""])
sketch7.MapMode = "FlatFace"
sketch7.addGeometry(Part.Circle(Vector(74.3, -2.8, 0), Vector(0, 0, 1), 3.4), False)
sketch7.addGeometry(Part.Circle(Vector(146.7, -2.8, 0), Vector(0, 0, 1), 3.4), False)
sketch7.addConstraint(Sketcher.Constraint("Equal", 0, 1))
sketch7.addConstraint(Sketcher.Constraint("Horizontal", 0, 3, 1, 3))
sketch7.addConstraint(Sketcher.Constraint("Diameter", 0, Q("0.27 in")))
sketch7.addConstraint(Sketcher.Constraint("DistanceY", 0, 3, -1, 1, Q("0.11 in")))
sketch7.addConstraint(Sketcher.Constraint("DistanceX", 0, 3, 1, 3, Q("2.85 in")))
sketch7.addConstraint(Sketcher.Constraint("DistanceX", -1, 1, 0, 3, Q("2.925 in")))
sketch7.setExpression("Constraints[2]", "Params.sketch7_diameter")
doc.recompute()
hole3 = body.newObject("PartDesign::Hole", "Hole002")
hole3.Profile = sketch7
hole3.ThreadType = "None"
hole3.setExpression("Diameter", "Params.hole3_diameter")
hole3.DepthType = "ThroughAll"
hole3.Reversed = True

# Sketch on XY plane
sketch8 = body.newObject("Sketcher::SketchObject", "Sketch007")
sketch8.AttachmentSupport = (doc.getObject("XY_Plane"), [""])
sketch8.MapMode = "FlatFace"
sketch8.addGeometry(Part.Circle(Vector(0, 146.1, 0), Vector(0, 0, 1), 2.6), False)
sketch8.addGeometry(Part.Circle(Vector(0, 120.7, 0), Vector(0, 0, 1), 2.6), False)
sketch8.addGeometry(Part.Circle(Vector(0, 95.2, 0), Vector(0, 0, 1), 2.6), False)
sketch8.addGeometry(Part.Circle(Vector(0, 69.8, 0), Vector(0, 0, 1), 2.6), False)
sketch8.addGeometry(Part.Circle(Vector(0, 44.5, 0), Vector(0, 0, 1), 2.6), False)
sketch8.addGeometry(Part.Circle(Vector(0, 19.1, 0), Vector(0, 0, 1), 2.6), False)
sketch8.addGeometry(Part.Circle(Vector(0, -6.3, 0), Vector(0, 0, 1), 2.6), False)
sketch8.addGeometry(Part.Circle(Vector(0, -31.8, 0), Vector(0, 0, 1), 2.6), False)
sketch8.addGeometry(Part.Circle(Vector(0, -57.1, 0), Vector(0, 0, 1), 2.6), False)
sketch8.addGeometry(Part.Circle(Vector(0, -82.5, 0), Vector(0, 0, 1), 2.6), False)
sketch8.addGeometry(Part.Circle(Vector(0, -108, 0), Vector(0, 0, 1), 2.6), False)
sketch8.addGeometry(Part.Circle(Vector(0, -133.3, 0), Vector(0, 0, 1), 2.6), False)
sketch8.addGeometry(Part.Circle(Vector(0, -158.8, 0), Vector(0, 0, 1), 2.6), False)
sketch8.addConstraint(Sketcher.Constraint("Equal", 0, 1))
sketch8.addConstraint(Sketcher.Constraint("Equal", 1, 2))
sketch8.addConstraint(Sketcher.Constraint("Equal", 2, 3))
sketch8.addConstraint(Sketcher.Constraint("Equal", 3, 4))
sketch8.addConstraint(Sketcher.Constraint("Equal", 4, 5))
sketch8.addConstraint(Sketcher.Constraint("Equal", 5, 6))
sketch8.addConstraint(Sketcher.Constraint("Equal", 6, 7))
sketch8.addConstraint(Sketcher.Constraint("Equal", 7, 8))
sketch8.addConstraint(Sketcher.Constraint("Equal", 8, 9))
sketch8.addConstraint(Sketcher.Constraint("Equal", 9, 10))
sketch8.addConstraint(Sketcher.Constraint("Equal", 10, 11))
sketch8.addConstraint(Sketcher.Constraint("Equal", 11, 12))
sketch8.addConstraint(Sketcher.Constraint("PointOnObject", 0, 3, -2))
sketch8.addConstraint(Sketcher.Constraint("PointOnObject", 1, 3, -2))
sketch8.addConstraint(Sketcher.Constraint("PointOnObject", 2, 3, -2))
sketch8.addConstraint(Sketcher.Constraint("PointOnObject", 3, 3, -2))
sketch8.addConstraint(Sketcher.Constraint("PointOnObject", 4, 3, -2))
sketch8.addConstraint(Sketcher.Constraint("PointOnObject", 5, 3, -2))
sketch8.addConstraint(Sketcher.Constraint("PointOnObject", 6, 3, -2))
sketch8.addConstraint(Sketcher.Constraint("PointOnObject", 7, 3, -2))
sketch8.addConstraint(Sketcher.Constraint("PointOnObject", 8, 3, -2))
sketch8.addConstraint(Sketcher.Constraint("PointOnObject", 9, 3, -2))
sketch8.addConstraint(Sketcher.Constraint("PointOnObject", 10, 3, -2))
sketch8.addConstraint(Sketcher.Constraint("PointOnObject", 11, 3, -2))
sketch8.addConstraint(Sketcher.Constraint("PointOnObject", 12, 3, -2))
sketch8.addConstraint(Sketcher.Constraint("Diameter", 0, Q("0.201 in")))
sketch8.addConstraint(Sketcher.Constraint("DistanceY", 1, 3, 0, 3, Q("1 in")))
sketch8.addConstraint(Sketcher.Constraint("DistanceY", 2, 3, 1, 3, Q("1 in")))
sketch8.addConstraint(Sketcher.Constraint("DistanceY", 3, 3, 2, 3, Q("1 in")))
sketch8.addConstraint(Sketcher.Constraint("DistanceY", 4, 3, 3, 3, Q("1 in")))
sketch8.addConstraint(Sketcher.Constraint("DistanceY", 5, 3, 4, 3, Q("1 in")))
sketch8.addConstraint(Sketcher.Constraint("DistanceY", 6, 3, 5, 3, Q("1 in")))
sketch8.addConstraint(Sketcher.Constraint("DistanceY", 7, 3, 6, 3, Q("1 in")))
sketch8.addConstraint(Sketcher.Constraint("DistanceY", 8, 3, 7, 3, Q("1 in")))
sketch8.addConstraint(Sketcher.Constraint("DistanceY", 9, 3, 8, 3, Q("1 in")))
sketch8.addConstraint(Sketcher.Constraint("DistanceY", 10, 3, 9, 3, Q("1 in")))
sketch8.addConstraint(Sketcher.Constraint("DistanceY", 11, 3, 10, 3, Q("1 in")))
sketch8.addConstraint(Sketcher.Constraint("DistanceY", 12, 3, 11, 3, Q("1 in")))
sketch8.addConstraint(Sketcher.Constraint("DistanceY", -1, 1, 0, 3, Q("5.75 in")))
sketch8.setExpression("Constraints[25]", "Params.sketch8_diameter")
doc.recompute()
hole4 = body.newObject("PartDesign::Hole", "Hole003")
hole4.Profile = sketch8
hole4.ThreadType = "None"
hole4.setExpression("Diameter", "Params.hole4_diameter")
hole4.DepthType = "ThroughAll"
hole4.Reversed = True

# Sketch on XY plane
sketch9 = body.newObject("Sketcher::SketchObject", "Sketch008")
sketch9.AttachmentSupport = (doc.getObject("XY_Plane"), [""])
sketch9.MapMode = "FlatFace"
sketch9.AttachmentOffset = App.Placement(Vector(0, 0, 0.25 * 25.4), App.Rotation())
sketch9.addGeometry(Part.Circle(Vector(132, -39.1, 0), Vector(0, 0, 1), 2.6), False)
sketch9.addGeometry(Part.Circle(Vector(97.1, -61.4, 0), Vector(0, 0, 1), 2.6), False)
sketch9.addGeometry(Part.Circle(Vector(74.9, -86.8, 0), Vector(0, 0, 1), 2.6), False)
sketch9.addConstraint(Sketcher.Constraint("Equal", 0, 1))
sketch9.addConstraint(Sketcher.Constraint("Equal", 1, 2))
sketch9.addConstraint(Sketcher.Constraint("Diameter", 0, Q("0.201 in")))
sketch9.addConstraint(Sketcher.Constraint("DistanceY", 2, 3, 1, 3, Q("1 in")))
sketch9.addConstraint(Sketcher.Constraint("DistanceX", -1, 1, 0, 3, Q("5.198 in")))
sketch9.addConstraint(Sketcher.Constraint("DistanceY", 1, 3, 0, 3, Q("0.875 in")))
sketch9.addConstraint(Sketcher.Constraint("DistanceX", 2, 3, 1, 3, Q("0.875 in")))
sketch9.addConstraint(Sketcher.Constraint("DistanceX", -1, 1, 1, 3, Q("3.8225 in")))
sketch9.addConstraint(Sketcher.Constraint("DistanceY", 0, 3, -1, 1, 39.13))
sketch9.setExpression("Constraints[2]", "Params.sketch9_diameter")
doc.recompute()
hole5 = body.newObject("PartDesign::Hole", "Hole004")
hole5.Profile = sketch9
hole5.ThreadType = "None"
hole5.setExpression("Diameter", "Params.hole5_diameter")
hole5.DepthType = "ThroughAll"

# Sketch on XY plane
sketch10 = body.newObject("Sketcher::SketchObject", "Sketch009")
sketch10.AttachmentSupport = (doc.getObject("XY_Plane"), [""])
sketch10.MapMode = "FlatFace"
sketch10.AttachmentOffset = App.Placement(Vector(0, 0, 0.125 * 25.4), App.Rotation())
sketch10.addGeometry(Part.Circle(Vector(-113.7, 75.9, 0), Vector(0, 0, 1), 2.1), False)
sketch10.addGeometry(Part.Circle(Vector(-113.7, 95.9, 0), Vector(0, 0, 1), 2.1), False)
sketch10.addConstraint(Sketcher.Constraint("Equal", 0, 1))
sketch10.addConstraint(Sketcher.Constraint("Vertical", 0, 3, 1, 3))
sketch10.addConstraint(Sketcher.Constraint("Diameter", 0, Q("0.169 in")))
sketch10.addConstraint(Sketcher.Constraint("DistanceX", 0, 3, -1, 1, Q("4.4744 in")))
sketch10.addConstraint(Sketcher.Constraint("DistanceY", -1, 1, 0, 3, Q("2.9882 in")))
sketch10.addConstraint(Sketcher.Constraint("DistanceY", -1, 1, 1, 3, Q("3.7756 in")))
sketch10.setExpression("Constraints[2]", "Params.sketch10_diameter")
doc.recompute()
hole6 = body.newObject("PartDesign::Hole", "Hole005")
hole6.Profile = sketch10
hole6.ThreadType = "None"
hole6.setExpression("Diameter", "Params.hole6_diameter")
hole6.DepthType = "ThroughAll"
hole6.Reversed = True

doc.recompute()
